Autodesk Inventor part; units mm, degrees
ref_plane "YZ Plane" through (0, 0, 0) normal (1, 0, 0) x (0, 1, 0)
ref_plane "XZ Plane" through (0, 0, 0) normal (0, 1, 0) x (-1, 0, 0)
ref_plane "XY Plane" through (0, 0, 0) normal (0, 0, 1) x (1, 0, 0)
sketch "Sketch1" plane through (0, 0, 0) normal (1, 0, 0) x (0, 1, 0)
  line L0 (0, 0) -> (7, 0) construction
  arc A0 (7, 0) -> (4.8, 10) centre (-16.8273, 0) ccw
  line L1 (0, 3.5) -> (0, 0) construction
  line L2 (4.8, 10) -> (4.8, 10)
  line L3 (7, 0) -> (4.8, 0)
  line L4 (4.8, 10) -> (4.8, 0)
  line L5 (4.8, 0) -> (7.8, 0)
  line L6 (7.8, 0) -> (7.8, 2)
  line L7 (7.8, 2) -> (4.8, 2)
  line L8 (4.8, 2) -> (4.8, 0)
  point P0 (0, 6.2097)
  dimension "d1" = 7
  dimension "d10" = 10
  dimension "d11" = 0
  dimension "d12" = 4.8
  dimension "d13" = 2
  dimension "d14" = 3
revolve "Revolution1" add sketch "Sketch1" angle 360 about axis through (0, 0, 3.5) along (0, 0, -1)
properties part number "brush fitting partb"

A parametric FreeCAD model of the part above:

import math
import FreeCAD as App
import Part
import Sketcher
Q = App.Units.Quantity

doc = App.newDocument("Part")
params = doc.addObject("Spreadsheet::Sheet", "Params")
for row, (alias, value) in enumerate([
    ("sketch1_width", "3 mm"),
    ("sketch1_height", "2 mm"),
    ("sketch1_height2", "10 mm"),
    ("revolution_angle", "360 deg"),
], start=1):
    params.set(f"A{row}", alias)
    params.set(f"B{row}", "=" + value)
    params.setAlias(f"B{row}", alias)

body = doc.addObject("PartDesign::Body", "Body")

# Sketch on YZ plane
sketch1 = doc.addObject("Sketcher::SketchObject", "Sketch")
body.addObject(sketch1)
sketch1.AttachmentSupport = (doc.YZ_Plane, [""])
sketch1.MapMode = "FlatFace"
sketch1.addGeometry([
    Part.LineSegment(App.Vector(4.8, 0, 0), App.Vector(7.8, 0, 0)),  # 0
    Part.LineSegment(App.Vector(7.8, 0, 0), App.Vector(7.8, 2, 0)),  # 1
    Part.LineSegment(App.Vector(7.8, 2, 0), App.Vector(6.915915, 2, 0)),  # 2
    Part.ArcOfCircle(Part.Circle(App.Vector(-16.8273, 0, 0), App.Vector(0, 0, 1), 23.8273), math.radians(4.81492), math.radians(24.81481)),  # 3
    Part.LineSegment(App.Vector(4.8, 10, 0), App.Vector(4.8, 0, 0)),  # 4
], False)
sketch1.addConstraint([
    Sketcher.Constraint("Coincident", 0, 2, 1, 1),
    Sketcher.Constraint("Coincident", 1, 2, 2, 1),
    Sketcher.Constraint("Coincident", 2, 2, 3, 1),
    Sketcher.Constraint("Coincident", 3, 2, 4, 1),
    Sketcher.Constraint("Coincident", 4, 2, 0, 1),
    Sketcher.Constraint("Horizontal", 0),
    Sketcher.Constraint("Vertical", 1),
    Sketcher.Constraint("Horizontal", 2),
    Sketcher.Constraint("Vertical", 4),
    Sketcher.Constraint("PointOnObject", 3, 3, -1),
    Sketcher.Constraint("PointOnObject", 0, 2, -1),
    Sketcher.Constraint("DistanceX", 0, 1, 0, 2, Q("3 mm")),
    Sketcher.Constraint("DistanceY", 1, 1, 1, 2, Q("2 mm")),
    Sketcher.Constraint("DistanceY", 4, 2, 4, 1, Q("10 mm")),
    Sketcher.Constraint("DistanceX", -1, 1, 3, 2, Q("4.8 mm")),
    Sketcher.Constraint("Radius", 3, Q("23.8273 mm")),
])
sketch1.setExpression("Constraints[11]", "Params.sketch1_width")
sketch1.setExpression("Constraints[12]", "Params.sketch1_height")
sketch1.setExpression("Constraints[13]", "Params.sketch1_height2")
revolution = doc.addObject("PartDesign::Revolution", "Revolution")
body.addObject(revolution)
revolution.Profile = sketch1
revolution.ReferenceAxis = (sketch1, ["V_Axis"])
revolution.setExpression("Angle", "Params.revolution_angle")

doc.recompute()
